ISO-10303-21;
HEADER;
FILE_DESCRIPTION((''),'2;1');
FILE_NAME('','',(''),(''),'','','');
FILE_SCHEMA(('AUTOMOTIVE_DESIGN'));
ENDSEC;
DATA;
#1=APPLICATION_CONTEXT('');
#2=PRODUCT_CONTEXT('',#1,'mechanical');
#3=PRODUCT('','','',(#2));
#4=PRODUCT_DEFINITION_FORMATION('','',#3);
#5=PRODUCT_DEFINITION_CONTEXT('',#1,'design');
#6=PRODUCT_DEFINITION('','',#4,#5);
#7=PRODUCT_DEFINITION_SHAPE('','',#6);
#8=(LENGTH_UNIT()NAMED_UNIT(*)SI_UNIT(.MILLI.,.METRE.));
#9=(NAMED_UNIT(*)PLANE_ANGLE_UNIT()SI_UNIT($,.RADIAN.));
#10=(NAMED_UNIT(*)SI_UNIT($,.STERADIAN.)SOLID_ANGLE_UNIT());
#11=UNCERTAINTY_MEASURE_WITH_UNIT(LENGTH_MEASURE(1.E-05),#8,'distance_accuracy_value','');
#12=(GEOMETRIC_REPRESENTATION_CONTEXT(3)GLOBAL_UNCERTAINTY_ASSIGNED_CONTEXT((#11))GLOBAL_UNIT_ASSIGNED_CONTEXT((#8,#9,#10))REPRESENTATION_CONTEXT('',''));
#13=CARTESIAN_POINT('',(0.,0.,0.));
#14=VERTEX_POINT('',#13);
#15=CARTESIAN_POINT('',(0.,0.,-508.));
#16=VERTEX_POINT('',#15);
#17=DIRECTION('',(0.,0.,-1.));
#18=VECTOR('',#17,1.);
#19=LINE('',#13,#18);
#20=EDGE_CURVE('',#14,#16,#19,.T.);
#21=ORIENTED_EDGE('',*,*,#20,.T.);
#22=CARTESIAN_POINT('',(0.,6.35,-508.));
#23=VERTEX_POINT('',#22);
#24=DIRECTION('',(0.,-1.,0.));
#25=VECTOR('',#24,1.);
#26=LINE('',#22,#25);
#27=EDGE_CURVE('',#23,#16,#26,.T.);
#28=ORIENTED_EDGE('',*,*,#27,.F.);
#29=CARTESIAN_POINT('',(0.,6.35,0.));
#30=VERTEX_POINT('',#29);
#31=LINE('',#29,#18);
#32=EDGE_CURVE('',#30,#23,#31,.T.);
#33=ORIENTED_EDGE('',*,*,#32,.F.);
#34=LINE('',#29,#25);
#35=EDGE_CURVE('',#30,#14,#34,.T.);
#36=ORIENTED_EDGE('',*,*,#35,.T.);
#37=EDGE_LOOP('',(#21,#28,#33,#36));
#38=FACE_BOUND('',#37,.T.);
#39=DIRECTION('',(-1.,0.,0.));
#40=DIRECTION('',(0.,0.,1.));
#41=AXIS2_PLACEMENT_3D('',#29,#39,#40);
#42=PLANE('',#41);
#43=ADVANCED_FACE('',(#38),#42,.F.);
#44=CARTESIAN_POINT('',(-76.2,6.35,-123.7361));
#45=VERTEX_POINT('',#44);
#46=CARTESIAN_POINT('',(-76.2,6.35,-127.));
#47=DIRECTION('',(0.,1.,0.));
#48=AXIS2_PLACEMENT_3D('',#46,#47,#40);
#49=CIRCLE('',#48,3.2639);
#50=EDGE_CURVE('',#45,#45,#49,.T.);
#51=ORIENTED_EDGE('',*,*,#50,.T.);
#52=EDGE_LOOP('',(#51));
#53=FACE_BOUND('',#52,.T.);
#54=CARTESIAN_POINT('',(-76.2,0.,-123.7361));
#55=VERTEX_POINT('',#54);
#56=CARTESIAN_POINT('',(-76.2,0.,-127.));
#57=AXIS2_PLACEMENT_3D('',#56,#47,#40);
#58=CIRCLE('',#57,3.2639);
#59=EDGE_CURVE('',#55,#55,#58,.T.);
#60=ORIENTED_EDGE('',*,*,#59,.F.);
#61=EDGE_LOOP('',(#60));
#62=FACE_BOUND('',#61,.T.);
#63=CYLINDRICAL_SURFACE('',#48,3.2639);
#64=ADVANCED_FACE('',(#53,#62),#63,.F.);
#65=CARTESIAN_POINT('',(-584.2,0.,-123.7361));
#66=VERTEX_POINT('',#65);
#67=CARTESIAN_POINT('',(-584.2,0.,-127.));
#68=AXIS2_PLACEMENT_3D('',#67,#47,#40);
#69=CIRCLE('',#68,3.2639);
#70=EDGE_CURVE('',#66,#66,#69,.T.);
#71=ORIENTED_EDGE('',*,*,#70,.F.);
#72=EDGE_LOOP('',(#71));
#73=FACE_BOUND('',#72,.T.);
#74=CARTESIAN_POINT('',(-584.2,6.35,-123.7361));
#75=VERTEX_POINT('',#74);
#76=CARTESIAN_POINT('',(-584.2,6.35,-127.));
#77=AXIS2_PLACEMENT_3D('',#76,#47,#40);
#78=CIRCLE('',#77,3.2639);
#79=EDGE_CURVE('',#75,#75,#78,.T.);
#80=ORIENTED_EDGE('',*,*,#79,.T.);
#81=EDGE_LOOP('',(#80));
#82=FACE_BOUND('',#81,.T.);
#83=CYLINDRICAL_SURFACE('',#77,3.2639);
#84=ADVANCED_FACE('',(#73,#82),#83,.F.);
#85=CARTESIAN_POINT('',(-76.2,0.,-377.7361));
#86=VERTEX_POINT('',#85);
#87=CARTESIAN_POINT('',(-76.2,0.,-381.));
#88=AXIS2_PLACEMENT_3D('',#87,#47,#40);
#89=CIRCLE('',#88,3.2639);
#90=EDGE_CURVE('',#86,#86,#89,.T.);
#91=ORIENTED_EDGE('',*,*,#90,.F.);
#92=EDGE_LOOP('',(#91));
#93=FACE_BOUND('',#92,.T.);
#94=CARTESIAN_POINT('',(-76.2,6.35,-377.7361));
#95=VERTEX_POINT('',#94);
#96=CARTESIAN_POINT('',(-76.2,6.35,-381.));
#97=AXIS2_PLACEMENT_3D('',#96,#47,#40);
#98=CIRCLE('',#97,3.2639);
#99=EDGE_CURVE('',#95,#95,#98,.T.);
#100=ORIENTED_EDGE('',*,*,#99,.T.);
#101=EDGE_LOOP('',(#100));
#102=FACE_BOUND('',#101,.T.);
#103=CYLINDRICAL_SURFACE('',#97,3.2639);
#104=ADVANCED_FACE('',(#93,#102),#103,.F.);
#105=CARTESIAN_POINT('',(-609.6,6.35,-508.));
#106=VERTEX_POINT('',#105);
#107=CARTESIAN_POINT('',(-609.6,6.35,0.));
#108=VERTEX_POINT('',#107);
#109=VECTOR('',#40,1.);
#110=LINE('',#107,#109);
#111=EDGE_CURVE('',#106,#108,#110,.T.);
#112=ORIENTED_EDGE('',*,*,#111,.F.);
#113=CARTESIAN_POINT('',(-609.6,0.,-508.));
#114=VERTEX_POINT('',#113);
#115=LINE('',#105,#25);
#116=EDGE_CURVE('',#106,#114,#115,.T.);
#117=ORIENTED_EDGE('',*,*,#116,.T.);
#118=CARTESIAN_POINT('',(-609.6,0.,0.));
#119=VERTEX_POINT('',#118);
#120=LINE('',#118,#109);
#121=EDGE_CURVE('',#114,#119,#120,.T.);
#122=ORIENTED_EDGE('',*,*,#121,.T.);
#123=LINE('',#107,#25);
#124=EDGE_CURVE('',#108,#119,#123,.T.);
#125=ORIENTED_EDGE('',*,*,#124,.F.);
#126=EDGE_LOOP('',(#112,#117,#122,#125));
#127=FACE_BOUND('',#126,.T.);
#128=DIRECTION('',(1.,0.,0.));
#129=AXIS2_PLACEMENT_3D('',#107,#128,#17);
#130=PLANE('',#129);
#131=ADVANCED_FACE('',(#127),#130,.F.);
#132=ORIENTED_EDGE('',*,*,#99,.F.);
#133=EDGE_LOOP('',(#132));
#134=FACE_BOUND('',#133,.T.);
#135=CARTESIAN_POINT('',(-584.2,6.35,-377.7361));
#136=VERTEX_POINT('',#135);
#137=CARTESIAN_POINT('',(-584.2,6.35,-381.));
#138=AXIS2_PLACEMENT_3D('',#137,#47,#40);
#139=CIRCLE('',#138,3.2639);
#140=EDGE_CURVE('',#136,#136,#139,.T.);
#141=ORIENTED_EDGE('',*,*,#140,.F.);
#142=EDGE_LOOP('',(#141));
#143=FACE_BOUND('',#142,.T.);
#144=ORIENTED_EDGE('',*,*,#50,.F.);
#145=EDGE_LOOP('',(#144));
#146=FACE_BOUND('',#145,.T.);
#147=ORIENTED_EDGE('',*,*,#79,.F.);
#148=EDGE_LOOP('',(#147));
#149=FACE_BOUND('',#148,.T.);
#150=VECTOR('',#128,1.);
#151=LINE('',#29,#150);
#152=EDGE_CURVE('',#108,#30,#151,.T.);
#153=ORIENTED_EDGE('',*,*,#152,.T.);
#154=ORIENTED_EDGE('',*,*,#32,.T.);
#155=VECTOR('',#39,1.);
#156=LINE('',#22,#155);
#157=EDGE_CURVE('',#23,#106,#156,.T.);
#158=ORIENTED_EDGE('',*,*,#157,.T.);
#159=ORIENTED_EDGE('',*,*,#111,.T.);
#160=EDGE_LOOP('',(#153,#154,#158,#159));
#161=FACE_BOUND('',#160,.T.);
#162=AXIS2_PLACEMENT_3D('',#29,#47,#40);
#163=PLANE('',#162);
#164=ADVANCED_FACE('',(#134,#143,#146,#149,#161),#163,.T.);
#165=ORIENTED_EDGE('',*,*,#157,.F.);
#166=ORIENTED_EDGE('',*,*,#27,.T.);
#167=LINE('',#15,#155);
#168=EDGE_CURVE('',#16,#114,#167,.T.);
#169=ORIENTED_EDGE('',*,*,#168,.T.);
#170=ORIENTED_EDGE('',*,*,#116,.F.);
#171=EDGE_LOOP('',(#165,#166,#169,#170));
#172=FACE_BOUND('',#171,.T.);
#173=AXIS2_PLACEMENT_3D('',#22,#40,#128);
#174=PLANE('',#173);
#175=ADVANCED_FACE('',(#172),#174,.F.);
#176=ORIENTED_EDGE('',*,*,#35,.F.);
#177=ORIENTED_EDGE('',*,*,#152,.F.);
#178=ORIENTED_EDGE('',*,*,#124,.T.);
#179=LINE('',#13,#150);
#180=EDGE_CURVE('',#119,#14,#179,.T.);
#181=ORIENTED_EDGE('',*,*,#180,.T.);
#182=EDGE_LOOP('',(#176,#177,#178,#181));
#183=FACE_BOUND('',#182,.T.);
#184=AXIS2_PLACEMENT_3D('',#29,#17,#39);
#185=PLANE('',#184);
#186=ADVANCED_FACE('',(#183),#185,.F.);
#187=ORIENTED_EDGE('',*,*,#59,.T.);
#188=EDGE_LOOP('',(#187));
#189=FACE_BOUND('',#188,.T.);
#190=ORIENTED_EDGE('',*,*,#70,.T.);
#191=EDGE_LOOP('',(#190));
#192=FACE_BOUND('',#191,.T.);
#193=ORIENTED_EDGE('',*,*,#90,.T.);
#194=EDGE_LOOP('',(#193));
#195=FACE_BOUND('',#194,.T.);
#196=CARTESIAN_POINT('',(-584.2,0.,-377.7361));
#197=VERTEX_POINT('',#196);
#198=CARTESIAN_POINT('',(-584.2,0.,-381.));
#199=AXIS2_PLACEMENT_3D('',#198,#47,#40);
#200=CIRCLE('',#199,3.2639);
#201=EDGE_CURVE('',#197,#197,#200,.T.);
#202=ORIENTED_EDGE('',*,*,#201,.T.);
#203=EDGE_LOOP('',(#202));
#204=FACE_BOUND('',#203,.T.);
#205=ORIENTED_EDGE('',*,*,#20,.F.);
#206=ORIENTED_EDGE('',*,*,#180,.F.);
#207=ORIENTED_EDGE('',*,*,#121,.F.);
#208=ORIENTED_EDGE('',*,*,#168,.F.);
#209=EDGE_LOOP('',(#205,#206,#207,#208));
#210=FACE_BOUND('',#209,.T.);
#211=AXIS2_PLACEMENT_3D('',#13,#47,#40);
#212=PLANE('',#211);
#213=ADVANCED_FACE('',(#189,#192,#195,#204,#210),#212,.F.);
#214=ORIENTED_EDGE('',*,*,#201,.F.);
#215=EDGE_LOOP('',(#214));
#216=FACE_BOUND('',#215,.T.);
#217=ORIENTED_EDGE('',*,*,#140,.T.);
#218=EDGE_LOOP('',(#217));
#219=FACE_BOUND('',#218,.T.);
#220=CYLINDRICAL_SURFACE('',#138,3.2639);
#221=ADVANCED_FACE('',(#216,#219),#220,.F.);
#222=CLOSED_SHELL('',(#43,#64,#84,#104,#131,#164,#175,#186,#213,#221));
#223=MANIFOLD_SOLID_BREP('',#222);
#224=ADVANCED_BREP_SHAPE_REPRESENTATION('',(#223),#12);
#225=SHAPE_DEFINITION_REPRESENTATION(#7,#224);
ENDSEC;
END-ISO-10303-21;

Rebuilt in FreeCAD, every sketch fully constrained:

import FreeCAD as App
import Part
import Sketcher

V = App.Vector
Q = App.Units.Quantity


def add_polygon(sketch, points):
    """Adds a closed chain of lines whose ends are joined by coincident constraints."""
    first, n = sketch.GeometryCount, len(points)
    for a, b in zip(points, points[1:] + points[:1]):
        sketch.addGeometry(Part.LineSegment(App.Vector(*a, 0), App.Vector(*b, 0)), False)
    for i in range(n):
        sketch.addConstraint(Sketcher.Constraint("Coincident", first + i, 2, first + (i + 1) % n, 1))

doc = App.newDocument("Part")
body = doc.addObject("PartDesign::Body", "Body")

# Sketch on XZ plane
sketch1 = doc.addObject("Sketcher::SketchObject", "Sketch")
body.addObject(sketch1)
sketch1.AttachmentSupport = (doc.XZ_Plane, [""])
sketch1.MapMode = "FlatFace"
add_polygon(sketch1, [(-610, -508), (-610, 0), (0, 0), (0, -508)])  # lines 0-3
sketch1.addConstraint(Sketcher.Constraint("Vertical", 0))
sketch1.addConstraint(Sketcher.Constraint("Horizontal", 1))
sketch1.addConstraint(Sketcher.Constraint("Vertical", 2))
sketch1.addConstraint(Sketcher.Constraint("Horizontal", 3))
sketch1.addConstraint(Sketcher.Constraint("Coincident", 1, 2, -1, 1))
sketch1.addConstraint(Sketcher.Constraint("DistanceX", 1, 1, 1, 2, Q("24 in")))
sketch1.addConstraint(Sketcher.Constraint("DistanceY", 0, 1, 0, 2, Q("20 in")))
pad1 = doc.addObject("PartDesign::Pad", "Pad")
body.addObject(pad1)
pad1.Profile = sketch1
pad1.Length = Q("0.25 in")
pad1.Reversed = True

# Sketch on XZ plane
sketch2 = doc.addObject("Sketcher::SketchObject", "Sketch001")
body.addObject(sketch2)
sketch2.AttachmentSupport = (doc.XZ_Plane, [""])
sketch2.MapMode = "FlatFace"
sketch2.AttachmentOffset = App.Placement(V(0, 0, -0.25 * 25.4), App.Rotation())
sketch2.addGeometry(Part.Circle(V(-76.2, -381, 0), V(0, 0, 1), 3.3), False)
sketch2.addGeometry(Part.Circle(V(-76.2, -127, 0), V(0, 0, 1), 3.3), False)
sketch2.addGeometry(Part.Circle(V(-584.2, -127, 0), V(0, 0, 1), 3.3), False)
sketch2.addGeometry(Part.Circle(V(-584.2, -381, 0), V(0, 0, 1), 3.3), False)
sketch2.addConstraint(Sketcher.Constraint("Equal", 0, 1))
sketch2.addConstraint(Sketcher.Constraint("Equal", 1, 2))
sketch2.addConstraint(Sketcher.Constraint("Equal", 2, 3))
sketch2.addConstraint(Sketcher.Constraint("Horizontal", 1, 3, 2, 3))
sketch2.addConstraint(Sketcher.Constraint("Horizontal", 0, 3, 3, 3))
sketch2.addConstraint(Sketcher.Constraint("Vertical", 0, 3, 1, 3))
sketch2.addConstraint(Sketcher.Constraint("Vertical", 2, 3, 3, 3))
sketch2.addConstraint(Sketcher.Constraint("Diameter", 0, Q("0.257 in")))
sketch2.addConstraint(Sketcher.Constraint("DistanceX", 0, 3, -1, 1, Q("3 in")))
sketch2.addConstraint(Sketcher.Constraint("DistanceY", 0, 3, -1, 1, Q("15 in")))
sketch2.addConstraint(Sketcher.Constraint("DistanceY", 1, 3, -1, 1, Q("5 in")))
sketch2.addConstraint(Sketcher.Constraint("DistanceX", 2, 3, -1, 1, Q("23 in")))
doc.recompute()
hole = doc.addObject("PartDesign::Hole", "Hole")
body.addObject(hole)
hole.Profile = sketch2
hole.ThreadType = "None"
hole.Diameter = Q("0.257 in")
hole.DepthType = "Dimension"
hole.Depth = Q("0.88 in")
hole.DrillPoint = "Angled"
hole.DrillPointAngle = 118
hole.Reversed = True

doc.recompute()
